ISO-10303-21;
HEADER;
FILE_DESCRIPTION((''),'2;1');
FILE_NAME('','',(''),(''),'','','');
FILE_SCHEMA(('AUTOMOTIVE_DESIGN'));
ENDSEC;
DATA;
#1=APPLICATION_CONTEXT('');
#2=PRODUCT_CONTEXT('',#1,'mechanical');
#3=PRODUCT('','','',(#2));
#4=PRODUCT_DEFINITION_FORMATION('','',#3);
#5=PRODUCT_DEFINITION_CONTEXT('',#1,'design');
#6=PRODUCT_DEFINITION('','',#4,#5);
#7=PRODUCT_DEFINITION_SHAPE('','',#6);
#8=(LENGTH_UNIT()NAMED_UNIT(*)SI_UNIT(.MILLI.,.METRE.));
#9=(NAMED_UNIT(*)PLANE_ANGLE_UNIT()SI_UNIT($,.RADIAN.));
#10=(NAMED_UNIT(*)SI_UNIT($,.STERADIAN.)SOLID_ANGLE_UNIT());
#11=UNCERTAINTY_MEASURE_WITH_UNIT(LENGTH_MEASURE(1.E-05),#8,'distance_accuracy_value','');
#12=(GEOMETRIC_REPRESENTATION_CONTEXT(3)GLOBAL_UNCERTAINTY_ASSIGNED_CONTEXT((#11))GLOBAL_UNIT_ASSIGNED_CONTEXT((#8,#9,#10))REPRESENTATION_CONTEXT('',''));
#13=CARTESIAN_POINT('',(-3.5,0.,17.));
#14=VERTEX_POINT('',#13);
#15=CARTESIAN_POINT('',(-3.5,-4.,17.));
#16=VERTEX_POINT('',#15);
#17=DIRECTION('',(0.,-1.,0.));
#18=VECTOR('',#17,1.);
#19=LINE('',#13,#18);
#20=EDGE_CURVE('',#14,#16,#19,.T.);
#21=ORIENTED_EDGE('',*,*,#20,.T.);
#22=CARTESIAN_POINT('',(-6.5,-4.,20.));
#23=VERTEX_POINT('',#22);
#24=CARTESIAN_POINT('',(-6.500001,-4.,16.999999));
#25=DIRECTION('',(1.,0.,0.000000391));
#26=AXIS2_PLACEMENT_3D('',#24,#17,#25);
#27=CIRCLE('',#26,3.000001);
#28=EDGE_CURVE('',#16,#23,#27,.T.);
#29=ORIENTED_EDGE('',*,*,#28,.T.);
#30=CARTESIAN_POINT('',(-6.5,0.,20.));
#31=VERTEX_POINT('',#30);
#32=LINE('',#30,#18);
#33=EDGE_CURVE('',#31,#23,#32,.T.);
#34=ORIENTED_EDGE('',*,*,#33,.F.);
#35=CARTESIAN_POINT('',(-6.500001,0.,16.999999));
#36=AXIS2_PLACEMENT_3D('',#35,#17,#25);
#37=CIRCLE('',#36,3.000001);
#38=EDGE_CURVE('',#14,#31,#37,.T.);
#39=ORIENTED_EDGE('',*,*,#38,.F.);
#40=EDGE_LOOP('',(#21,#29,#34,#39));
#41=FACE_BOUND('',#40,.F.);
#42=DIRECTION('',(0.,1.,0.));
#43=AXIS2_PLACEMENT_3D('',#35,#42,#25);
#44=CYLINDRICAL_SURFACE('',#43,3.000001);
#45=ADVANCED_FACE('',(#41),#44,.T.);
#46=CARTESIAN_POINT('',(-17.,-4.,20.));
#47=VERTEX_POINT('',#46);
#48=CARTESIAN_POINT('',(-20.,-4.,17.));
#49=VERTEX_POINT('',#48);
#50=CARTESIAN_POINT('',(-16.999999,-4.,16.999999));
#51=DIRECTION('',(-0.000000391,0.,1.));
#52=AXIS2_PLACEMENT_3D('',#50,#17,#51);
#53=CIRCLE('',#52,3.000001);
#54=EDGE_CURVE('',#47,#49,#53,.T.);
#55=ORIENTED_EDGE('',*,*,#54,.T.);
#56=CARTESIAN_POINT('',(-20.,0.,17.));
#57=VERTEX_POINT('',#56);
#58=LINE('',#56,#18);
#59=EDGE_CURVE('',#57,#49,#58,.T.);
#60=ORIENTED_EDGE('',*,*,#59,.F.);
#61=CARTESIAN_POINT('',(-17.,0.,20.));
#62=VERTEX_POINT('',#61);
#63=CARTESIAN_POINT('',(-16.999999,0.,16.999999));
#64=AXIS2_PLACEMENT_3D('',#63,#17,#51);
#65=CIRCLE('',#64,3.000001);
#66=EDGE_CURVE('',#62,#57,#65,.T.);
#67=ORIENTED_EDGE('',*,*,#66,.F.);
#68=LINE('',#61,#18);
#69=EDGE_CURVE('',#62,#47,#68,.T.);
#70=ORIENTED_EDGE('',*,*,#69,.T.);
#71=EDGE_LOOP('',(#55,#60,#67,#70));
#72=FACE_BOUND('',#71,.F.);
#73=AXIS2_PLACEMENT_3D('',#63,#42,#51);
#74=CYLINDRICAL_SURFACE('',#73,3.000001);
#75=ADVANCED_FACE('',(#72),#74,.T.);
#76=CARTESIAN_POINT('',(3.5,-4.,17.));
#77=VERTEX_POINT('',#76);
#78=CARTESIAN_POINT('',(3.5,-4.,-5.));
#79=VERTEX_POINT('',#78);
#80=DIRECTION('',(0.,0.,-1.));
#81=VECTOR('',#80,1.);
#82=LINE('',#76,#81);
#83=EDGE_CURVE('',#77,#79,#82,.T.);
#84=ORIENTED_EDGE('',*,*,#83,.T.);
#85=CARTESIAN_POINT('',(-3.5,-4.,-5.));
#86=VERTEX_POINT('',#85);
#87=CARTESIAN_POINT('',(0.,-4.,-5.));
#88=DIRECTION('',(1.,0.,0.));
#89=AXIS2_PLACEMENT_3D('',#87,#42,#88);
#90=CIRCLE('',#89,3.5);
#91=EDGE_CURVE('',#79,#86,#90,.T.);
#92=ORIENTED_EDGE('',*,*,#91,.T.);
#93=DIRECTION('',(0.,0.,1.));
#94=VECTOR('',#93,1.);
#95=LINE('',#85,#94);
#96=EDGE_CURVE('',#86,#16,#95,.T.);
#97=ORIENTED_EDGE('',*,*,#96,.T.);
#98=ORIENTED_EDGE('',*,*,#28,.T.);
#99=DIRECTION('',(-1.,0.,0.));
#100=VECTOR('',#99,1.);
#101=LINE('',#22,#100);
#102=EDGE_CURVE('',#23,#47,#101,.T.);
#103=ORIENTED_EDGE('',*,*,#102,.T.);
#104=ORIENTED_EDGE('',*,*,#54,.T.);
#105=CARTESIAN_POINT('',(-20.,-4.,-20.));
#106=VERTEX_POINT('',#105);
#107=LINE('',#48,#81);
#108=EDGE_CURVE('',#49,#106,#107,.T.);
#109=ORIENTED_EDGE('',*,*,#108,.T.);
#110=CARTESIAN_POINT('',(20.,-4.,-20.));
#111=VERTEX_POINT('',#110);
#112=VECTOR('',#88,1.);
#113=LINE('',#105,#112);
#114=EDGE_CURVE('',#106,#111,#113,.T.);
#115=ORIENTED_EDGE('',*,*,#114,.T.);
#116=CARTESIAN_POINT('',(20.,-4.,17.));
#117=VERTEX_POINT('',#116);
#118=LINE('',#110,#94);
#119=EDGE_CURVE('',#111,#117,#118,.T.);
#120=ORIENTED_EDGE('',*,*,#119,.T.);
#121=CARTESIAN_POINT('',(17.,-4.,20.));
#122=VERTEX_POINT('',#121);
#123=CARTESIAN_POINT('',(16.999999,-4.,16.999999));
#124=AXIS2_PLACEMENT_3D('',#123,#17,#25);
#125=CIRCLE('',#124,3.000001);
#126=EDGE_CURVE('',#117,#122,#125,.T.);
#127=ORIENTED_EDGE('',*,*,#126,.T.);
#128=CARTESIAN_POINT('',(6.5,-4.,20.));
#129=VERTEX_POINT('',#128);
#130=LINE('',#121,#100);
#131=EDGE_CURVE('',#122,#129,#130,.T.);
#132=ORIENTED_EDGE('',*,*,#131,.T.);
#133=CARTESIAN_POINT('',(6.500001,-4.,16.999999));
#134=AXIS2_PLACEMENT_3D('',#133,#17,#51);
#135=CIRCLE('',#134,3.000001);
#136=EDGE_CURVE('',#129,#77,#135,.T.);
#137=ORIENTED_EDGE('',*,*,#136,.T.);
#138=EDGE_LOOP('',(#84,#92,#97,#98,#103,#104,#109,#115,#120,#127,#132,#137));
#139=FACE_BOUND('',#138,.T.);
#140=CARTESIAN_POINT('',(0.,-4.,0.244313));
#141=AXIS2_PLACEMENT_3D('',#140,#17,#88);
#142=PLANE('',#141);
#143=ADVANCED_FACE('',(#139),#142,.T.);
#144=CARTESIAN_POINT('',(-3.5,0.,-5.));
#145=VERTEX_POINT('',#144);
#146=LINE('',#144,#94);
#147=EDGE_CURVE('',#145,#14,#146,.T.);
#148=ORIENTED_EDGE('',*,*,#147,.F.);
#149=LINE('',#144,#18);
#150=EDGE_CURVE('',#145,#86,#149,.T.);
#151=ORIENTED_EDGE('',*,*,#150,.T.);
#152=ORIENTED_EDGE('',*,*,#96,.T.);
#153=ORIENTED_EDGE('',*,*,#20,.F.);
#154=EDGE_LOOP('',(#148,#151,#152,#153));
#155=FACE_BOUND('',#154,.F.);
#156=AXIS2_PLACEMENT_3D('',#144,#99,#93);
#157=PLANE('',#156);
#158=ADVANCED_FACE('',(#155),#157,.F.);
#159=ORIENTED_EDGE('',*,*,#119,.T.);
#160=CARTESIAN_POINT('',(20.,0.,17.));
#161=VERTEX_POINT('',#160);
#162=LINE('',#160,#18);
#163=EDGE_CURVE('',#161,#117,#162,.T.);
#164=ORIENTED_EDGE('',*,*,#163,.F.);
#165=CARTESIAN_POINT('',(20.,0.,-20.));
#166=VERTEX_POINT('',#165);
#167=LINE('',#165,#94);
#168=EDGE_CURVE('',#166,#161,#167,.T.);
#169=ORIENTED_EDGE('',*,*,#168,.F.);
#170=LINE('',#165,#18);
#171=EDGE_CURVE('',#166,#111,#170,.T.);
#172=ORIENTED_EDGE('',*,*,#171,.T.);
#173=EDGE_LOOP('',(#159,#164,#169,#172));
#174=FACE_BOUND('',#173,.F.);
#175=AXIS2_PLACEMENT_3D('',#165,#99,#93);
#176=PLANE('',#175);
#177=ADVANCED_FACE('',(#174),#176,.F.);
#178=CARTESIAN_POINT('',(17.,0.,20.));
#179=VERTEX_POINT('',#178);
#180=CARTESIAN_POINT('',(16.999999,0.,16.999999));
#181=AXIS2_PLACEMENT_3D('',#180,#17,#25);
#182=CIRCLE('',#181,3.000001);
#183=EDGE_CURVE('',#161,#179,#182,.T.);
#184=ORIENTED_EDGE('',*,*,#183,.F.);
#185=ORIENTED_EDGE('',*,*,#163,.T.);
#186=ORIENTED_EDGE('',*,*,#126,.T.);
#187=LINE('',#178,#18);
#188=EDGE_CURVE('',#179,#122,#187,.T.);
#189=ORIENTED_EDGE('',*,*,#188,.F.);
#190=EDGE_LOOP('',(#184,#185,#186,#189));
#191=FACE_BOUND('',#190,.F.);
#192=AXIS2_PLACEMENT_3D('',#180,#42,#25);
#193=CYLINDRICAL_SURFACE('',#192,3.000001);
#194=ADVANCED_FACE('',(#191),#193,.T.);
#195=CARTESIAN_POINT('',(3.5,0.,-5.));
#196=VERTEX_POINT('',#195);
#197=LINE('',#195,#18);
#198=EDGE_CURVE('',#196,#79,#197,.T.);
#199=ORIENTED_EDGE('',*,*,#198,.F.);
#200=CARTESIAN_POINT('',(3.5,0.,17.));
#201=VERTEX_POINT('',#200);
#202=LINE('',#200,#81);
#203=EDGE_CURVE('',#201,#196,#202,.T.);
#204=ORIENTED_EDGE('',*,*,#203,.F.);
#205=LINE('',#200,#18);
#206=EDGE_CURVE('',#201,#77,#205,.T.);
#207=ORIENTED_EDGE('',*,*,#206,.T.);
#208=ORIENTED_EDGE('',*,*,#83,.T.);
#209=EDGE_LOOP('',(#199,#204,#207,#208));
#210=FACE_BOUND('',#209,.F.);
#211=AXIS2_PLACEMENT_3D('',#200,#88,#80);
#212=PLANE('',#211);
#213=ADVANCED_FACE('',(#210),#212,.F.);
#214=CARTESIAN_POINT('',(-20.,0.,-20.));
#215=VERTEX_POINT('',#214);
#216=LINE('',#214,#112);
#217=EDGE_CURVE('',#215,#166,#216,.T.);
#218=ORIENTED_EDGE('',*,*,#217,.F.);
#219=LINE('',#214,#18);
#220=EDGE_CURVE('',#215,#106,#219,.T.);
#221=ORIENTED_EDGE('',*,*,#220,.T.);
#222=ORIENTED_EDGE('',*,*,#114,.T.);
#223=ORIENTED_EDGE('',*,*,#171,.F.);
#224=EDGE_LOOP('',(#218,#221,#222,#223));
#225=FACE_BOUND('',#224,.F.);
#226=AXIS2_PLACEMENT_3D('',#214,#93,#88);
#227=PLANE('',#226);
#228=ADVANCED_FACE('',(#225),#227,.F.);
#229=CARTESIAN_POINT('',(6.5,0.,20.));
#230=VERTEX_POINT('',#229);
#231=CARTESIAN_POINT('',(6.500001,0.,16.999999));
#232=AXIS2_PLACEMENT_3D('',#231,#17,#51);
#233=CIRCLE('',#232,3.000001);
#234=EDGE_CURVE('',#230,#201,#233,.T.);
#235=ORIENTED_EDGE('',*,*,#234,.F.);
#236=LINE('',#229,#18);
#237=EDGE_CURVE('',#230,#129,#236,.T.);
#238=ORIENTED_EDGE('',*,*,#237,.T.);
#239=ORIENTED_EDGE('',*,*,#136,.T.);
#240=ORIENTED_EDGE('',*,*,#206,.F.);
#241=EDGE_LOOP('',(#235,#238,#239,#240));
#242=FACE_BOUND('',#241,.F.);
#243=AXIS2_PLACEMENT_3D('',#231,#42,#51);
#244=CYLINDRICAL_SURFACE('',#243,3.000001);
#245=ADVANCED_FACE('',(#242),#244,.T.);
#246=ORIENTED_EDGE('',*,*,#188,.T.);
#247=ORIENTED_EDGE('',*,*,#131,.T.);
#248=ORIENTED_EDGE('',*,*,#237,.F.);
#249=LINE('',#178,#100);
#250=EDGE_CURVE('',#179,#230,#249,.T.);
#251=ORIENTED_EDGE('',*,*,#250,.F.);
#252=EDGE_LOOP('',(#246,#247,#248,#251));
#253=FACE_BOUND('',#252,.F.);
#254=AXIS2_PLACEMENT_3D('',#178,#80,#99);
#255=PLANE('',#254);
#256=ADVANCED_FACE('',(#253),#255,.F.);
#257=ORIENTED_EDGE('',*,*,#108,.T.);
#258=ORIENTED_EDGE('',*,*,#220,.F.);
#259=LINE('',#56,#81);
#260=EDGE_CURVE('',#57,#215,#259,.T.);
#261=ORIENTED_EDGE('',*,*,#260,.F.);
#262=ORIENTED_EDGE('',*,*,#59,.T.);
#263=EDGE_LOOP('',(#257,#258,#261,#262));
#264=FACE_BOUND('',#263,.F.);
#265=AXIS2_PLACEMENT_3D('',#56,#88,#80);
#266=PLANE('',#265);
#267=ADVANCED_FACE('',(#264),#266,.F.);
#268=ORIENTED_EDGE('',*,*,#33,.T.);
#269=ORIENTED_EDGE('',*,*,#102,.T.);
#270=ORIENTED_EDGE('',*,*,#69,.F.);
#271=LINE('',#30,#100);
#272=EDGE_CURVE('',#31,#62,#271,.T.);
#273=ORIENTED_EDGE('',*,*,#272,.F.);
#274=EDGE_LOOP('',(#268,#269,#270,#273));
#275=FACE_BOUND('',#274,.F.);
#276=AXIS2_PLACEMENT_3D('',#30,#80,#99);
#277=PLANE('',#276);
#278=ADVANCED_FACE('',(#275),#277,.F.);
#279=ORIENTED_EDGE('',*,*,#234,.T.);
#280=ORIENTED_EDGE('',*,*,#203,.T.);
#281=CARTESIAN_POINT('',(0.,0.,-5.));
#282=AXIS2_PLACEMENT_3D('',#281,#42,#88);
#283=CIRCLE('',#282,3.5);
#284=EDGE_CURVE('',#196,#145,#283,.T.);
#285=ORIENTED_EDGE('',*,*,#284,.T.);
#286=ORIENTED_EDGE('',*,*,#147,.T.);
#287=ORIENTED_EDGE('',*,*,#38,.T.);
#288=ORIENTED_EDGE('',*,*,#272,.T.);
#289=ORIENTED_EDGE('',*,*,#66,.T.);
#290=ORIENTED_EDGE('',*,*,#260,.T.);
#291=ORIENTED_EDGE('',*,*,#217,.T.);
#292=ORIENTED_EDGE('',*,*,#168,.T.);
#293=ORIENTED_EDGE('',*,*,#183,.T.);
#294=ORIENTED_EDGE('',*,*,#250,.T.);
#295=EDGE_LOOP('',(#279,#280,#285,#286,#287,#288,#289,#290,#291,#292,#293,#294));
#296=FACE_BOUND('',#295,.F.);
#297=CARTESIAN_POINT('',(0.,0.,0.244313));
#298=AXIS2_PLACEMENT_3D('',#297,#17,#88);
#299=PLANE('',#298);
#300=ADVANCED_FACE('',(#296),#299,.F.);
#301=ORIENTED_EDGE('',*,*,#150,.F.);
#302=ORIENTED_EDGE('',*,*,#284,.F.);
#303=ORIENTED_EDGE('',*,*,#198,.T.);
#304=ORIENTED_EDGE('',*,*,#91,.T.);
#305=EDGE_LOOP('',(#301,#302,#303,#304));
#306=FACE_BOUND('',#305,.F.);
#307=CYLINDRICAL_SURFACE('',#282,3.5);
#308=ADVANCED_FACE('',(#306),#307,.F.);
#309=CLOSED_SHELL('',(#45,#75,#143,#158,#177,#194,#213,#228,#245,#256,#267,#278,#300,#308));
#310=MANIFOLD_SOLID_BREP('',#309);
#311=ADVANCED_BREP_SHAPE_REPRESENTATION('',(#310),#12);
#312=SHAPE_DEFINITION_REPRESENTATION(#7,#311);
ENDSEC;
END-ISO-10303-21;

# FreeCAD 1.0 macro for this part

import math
import FreeCAD as App
import Part
import Sketcher

V = App.Vector
Q = App.Units.Quantity

doc = App.newDocument("Part")
body = doc.addObject("PartDesign::Body", "Body")

# Sketch on XZ plane
sketch1 = doc.addObject("Sketcher::SketchObject", "Sketch")
body.addObject(sketch1)
sketch1.AttachmentSupport = (doc.XZ_Plane, [""])
sketch1.MapMode = "FlatFace"
sketch1.addGeometry(Part.LineSegment(V(-20, 17, 0), V(-20, -20, 0)), False)
sketch1.addGeometry(Part.LineSegment(V(-20, -20, 0), V(20, -20, 0)), False)
sketch1.addGeometry(Part.LineSegment(V(20, -20, 0), V(20, 17, 0)), False)
sketch1.addGeometry(Part.ArcOfCircle(Part.Circle(V(16.999999, 16.999999, 0), V(0, 0, 1), 3.000001), math.radians(0.000022), math.radians(89.999978)), False)
sketch1.addGeometry(Part.LineSegment(V(17, 20, 0), V(6.5, 20, 0)), False)
sketch1.addGeometry(Part.ArcOfCircle(Part.Circle(V(6.500001, 16.999999, 0), V(0, 0, 1), 3.000001), math.radians(90.000022), math.radians(179.999978)), False)
sketch1.addGeometry(Part.LineSegment(V(3.5, 17, 0), V(3.5, -5, 0)), False)
sketch1.addGeometry(Part.ArcOfCircle(Part.Circle(V(0, -5, 0), V(0, 0, 1), 3.5), math.radians(180), math.radians(360)), False)
sketch1.addGeometry(Part.LineSegment(V(-3.5, -5, 0), V(-3.5, 17, 0)), False)
sketch1.addGeometry(Part.ArcOfCircle(Part.Circle(V(-6.500001, 16.999999, 0), V(0, 0, 1), 3.000001), math.radians(0.000022), math.radians(89.999978)), False)
sketch1.addGeometry(Part.LineSegment(V(-6.5, 20, 0), V(-17, 20, 0)), False)
sketch1.addGeometry(Part.ArcOfCircle(Part.Circle(V(-16.999999, 16.999999, 0), V(0, 0, 1), 3.000001), math.radians(90.000022), math.radians(179.999978)), False)
sketch1.addConstraint(Sketcher.Constraint("Coincident", 0, 2, 1, 1))
sketch1.addConstraint(Sketcher.Constraint("Coincident", 1, 2, 2, 1))
sketch1.addConstraint(Sketcher.Constraint("Tangent", 2, 2, 3, 1))
sketch1.addConstraint(Sketcher.Constraint("Tangent", 3, 2, 4, 1))
sketch1.addConstraint(Sketcher.Constraint("Tangent", 4, 2, 5, 1))
sketch1.addConstraint(Sketcher.Constraint("Tangent", 5, 2, 6, 1))
sketch1.addConstraint(Sketcher.Constraint("Tangent", 6, 2, 7, 2))
sketch1.addConstraint(Sketcher.Constraint("Tangent", 7, 1, 8, 1))
sketch1.addConstraint(Sketcher.Constraint("Tangent", 8, 2, 9, 1))
sketch1.addConstraint(Sketcher.Constraint("Tangent", 9, 2, 10, 1))
sketch1.addConstraint(Sketcher.Constraint("Tangent", 10, 2, 11, 1))
sketch1.addConstraint(Sketcher.Constraint("Tangent", 11, 2, 0, 1))
sketch1.addConstraint(Sketcher.Constraint("Vertical", 0))
sketch1.addConstraint(Sketcher.Constraint("Horizontal", 1))
sketch1.addConstraint(Sketcher.Constraint("Vertical", 2))
sketch1.addConstraint(Sketcher.Constraint("Horizontal", 4))
sketch1.addConstraint(Sketcher.Constraint("Vertical", 6))
sketch1.addConstraint(Sketcher.Constraint("Vertical", 8))
sketch1.addConstraint(Sketcher.Constraint("Horizontal", 10))
sketch1.addConstraint(Sketcher.Constraint("Equal", 3, 5))
sketch1.addConstraint(Sketcher.Constraint("Equal", 5, 9))
sketch1.addConstraint(Sketcher.Constraint("Equal", 9, 11))
sketch1.addConstraint(Sketcher.Constraint("Symmetric", 5, 3, 9, 3, -2))
sketch1.addConstraint(Sketcher.Constraint("Equal", 4, 10))
sketch1.addConstraint(Sketcher.Constraint("Radius", 3, Q("3.000001 mm")))
sketch1.addConstraint(Sketcher.Constraint("Radius", 7, Q("3.5 mm")))
sketch1.addConstraint(Sketcher.Constraint("DistanceX", 1, 1, 1, 2, Q("40 mm")))
sketch1.addConstraint(Sketcher.Constraint("DistanceY", 0, 2, 0, 1, Q("37 mm")))
sketch1.addConstraint(Sketcher.Constraint("DistanceY", 6, 2, 6, 1, Q("22 mm")))
sketch1.addConstraint(Sketcher.Constraint("DistanceY", -1, 1, 3, 3, Q("16.999999 mm")))
pad1 = doc.addObject("PartDesign::Pad", "Pad")
body.addObject(pad1)
pad1.Profile = sketch1
pad1.Length = 4

doc.recompute()
